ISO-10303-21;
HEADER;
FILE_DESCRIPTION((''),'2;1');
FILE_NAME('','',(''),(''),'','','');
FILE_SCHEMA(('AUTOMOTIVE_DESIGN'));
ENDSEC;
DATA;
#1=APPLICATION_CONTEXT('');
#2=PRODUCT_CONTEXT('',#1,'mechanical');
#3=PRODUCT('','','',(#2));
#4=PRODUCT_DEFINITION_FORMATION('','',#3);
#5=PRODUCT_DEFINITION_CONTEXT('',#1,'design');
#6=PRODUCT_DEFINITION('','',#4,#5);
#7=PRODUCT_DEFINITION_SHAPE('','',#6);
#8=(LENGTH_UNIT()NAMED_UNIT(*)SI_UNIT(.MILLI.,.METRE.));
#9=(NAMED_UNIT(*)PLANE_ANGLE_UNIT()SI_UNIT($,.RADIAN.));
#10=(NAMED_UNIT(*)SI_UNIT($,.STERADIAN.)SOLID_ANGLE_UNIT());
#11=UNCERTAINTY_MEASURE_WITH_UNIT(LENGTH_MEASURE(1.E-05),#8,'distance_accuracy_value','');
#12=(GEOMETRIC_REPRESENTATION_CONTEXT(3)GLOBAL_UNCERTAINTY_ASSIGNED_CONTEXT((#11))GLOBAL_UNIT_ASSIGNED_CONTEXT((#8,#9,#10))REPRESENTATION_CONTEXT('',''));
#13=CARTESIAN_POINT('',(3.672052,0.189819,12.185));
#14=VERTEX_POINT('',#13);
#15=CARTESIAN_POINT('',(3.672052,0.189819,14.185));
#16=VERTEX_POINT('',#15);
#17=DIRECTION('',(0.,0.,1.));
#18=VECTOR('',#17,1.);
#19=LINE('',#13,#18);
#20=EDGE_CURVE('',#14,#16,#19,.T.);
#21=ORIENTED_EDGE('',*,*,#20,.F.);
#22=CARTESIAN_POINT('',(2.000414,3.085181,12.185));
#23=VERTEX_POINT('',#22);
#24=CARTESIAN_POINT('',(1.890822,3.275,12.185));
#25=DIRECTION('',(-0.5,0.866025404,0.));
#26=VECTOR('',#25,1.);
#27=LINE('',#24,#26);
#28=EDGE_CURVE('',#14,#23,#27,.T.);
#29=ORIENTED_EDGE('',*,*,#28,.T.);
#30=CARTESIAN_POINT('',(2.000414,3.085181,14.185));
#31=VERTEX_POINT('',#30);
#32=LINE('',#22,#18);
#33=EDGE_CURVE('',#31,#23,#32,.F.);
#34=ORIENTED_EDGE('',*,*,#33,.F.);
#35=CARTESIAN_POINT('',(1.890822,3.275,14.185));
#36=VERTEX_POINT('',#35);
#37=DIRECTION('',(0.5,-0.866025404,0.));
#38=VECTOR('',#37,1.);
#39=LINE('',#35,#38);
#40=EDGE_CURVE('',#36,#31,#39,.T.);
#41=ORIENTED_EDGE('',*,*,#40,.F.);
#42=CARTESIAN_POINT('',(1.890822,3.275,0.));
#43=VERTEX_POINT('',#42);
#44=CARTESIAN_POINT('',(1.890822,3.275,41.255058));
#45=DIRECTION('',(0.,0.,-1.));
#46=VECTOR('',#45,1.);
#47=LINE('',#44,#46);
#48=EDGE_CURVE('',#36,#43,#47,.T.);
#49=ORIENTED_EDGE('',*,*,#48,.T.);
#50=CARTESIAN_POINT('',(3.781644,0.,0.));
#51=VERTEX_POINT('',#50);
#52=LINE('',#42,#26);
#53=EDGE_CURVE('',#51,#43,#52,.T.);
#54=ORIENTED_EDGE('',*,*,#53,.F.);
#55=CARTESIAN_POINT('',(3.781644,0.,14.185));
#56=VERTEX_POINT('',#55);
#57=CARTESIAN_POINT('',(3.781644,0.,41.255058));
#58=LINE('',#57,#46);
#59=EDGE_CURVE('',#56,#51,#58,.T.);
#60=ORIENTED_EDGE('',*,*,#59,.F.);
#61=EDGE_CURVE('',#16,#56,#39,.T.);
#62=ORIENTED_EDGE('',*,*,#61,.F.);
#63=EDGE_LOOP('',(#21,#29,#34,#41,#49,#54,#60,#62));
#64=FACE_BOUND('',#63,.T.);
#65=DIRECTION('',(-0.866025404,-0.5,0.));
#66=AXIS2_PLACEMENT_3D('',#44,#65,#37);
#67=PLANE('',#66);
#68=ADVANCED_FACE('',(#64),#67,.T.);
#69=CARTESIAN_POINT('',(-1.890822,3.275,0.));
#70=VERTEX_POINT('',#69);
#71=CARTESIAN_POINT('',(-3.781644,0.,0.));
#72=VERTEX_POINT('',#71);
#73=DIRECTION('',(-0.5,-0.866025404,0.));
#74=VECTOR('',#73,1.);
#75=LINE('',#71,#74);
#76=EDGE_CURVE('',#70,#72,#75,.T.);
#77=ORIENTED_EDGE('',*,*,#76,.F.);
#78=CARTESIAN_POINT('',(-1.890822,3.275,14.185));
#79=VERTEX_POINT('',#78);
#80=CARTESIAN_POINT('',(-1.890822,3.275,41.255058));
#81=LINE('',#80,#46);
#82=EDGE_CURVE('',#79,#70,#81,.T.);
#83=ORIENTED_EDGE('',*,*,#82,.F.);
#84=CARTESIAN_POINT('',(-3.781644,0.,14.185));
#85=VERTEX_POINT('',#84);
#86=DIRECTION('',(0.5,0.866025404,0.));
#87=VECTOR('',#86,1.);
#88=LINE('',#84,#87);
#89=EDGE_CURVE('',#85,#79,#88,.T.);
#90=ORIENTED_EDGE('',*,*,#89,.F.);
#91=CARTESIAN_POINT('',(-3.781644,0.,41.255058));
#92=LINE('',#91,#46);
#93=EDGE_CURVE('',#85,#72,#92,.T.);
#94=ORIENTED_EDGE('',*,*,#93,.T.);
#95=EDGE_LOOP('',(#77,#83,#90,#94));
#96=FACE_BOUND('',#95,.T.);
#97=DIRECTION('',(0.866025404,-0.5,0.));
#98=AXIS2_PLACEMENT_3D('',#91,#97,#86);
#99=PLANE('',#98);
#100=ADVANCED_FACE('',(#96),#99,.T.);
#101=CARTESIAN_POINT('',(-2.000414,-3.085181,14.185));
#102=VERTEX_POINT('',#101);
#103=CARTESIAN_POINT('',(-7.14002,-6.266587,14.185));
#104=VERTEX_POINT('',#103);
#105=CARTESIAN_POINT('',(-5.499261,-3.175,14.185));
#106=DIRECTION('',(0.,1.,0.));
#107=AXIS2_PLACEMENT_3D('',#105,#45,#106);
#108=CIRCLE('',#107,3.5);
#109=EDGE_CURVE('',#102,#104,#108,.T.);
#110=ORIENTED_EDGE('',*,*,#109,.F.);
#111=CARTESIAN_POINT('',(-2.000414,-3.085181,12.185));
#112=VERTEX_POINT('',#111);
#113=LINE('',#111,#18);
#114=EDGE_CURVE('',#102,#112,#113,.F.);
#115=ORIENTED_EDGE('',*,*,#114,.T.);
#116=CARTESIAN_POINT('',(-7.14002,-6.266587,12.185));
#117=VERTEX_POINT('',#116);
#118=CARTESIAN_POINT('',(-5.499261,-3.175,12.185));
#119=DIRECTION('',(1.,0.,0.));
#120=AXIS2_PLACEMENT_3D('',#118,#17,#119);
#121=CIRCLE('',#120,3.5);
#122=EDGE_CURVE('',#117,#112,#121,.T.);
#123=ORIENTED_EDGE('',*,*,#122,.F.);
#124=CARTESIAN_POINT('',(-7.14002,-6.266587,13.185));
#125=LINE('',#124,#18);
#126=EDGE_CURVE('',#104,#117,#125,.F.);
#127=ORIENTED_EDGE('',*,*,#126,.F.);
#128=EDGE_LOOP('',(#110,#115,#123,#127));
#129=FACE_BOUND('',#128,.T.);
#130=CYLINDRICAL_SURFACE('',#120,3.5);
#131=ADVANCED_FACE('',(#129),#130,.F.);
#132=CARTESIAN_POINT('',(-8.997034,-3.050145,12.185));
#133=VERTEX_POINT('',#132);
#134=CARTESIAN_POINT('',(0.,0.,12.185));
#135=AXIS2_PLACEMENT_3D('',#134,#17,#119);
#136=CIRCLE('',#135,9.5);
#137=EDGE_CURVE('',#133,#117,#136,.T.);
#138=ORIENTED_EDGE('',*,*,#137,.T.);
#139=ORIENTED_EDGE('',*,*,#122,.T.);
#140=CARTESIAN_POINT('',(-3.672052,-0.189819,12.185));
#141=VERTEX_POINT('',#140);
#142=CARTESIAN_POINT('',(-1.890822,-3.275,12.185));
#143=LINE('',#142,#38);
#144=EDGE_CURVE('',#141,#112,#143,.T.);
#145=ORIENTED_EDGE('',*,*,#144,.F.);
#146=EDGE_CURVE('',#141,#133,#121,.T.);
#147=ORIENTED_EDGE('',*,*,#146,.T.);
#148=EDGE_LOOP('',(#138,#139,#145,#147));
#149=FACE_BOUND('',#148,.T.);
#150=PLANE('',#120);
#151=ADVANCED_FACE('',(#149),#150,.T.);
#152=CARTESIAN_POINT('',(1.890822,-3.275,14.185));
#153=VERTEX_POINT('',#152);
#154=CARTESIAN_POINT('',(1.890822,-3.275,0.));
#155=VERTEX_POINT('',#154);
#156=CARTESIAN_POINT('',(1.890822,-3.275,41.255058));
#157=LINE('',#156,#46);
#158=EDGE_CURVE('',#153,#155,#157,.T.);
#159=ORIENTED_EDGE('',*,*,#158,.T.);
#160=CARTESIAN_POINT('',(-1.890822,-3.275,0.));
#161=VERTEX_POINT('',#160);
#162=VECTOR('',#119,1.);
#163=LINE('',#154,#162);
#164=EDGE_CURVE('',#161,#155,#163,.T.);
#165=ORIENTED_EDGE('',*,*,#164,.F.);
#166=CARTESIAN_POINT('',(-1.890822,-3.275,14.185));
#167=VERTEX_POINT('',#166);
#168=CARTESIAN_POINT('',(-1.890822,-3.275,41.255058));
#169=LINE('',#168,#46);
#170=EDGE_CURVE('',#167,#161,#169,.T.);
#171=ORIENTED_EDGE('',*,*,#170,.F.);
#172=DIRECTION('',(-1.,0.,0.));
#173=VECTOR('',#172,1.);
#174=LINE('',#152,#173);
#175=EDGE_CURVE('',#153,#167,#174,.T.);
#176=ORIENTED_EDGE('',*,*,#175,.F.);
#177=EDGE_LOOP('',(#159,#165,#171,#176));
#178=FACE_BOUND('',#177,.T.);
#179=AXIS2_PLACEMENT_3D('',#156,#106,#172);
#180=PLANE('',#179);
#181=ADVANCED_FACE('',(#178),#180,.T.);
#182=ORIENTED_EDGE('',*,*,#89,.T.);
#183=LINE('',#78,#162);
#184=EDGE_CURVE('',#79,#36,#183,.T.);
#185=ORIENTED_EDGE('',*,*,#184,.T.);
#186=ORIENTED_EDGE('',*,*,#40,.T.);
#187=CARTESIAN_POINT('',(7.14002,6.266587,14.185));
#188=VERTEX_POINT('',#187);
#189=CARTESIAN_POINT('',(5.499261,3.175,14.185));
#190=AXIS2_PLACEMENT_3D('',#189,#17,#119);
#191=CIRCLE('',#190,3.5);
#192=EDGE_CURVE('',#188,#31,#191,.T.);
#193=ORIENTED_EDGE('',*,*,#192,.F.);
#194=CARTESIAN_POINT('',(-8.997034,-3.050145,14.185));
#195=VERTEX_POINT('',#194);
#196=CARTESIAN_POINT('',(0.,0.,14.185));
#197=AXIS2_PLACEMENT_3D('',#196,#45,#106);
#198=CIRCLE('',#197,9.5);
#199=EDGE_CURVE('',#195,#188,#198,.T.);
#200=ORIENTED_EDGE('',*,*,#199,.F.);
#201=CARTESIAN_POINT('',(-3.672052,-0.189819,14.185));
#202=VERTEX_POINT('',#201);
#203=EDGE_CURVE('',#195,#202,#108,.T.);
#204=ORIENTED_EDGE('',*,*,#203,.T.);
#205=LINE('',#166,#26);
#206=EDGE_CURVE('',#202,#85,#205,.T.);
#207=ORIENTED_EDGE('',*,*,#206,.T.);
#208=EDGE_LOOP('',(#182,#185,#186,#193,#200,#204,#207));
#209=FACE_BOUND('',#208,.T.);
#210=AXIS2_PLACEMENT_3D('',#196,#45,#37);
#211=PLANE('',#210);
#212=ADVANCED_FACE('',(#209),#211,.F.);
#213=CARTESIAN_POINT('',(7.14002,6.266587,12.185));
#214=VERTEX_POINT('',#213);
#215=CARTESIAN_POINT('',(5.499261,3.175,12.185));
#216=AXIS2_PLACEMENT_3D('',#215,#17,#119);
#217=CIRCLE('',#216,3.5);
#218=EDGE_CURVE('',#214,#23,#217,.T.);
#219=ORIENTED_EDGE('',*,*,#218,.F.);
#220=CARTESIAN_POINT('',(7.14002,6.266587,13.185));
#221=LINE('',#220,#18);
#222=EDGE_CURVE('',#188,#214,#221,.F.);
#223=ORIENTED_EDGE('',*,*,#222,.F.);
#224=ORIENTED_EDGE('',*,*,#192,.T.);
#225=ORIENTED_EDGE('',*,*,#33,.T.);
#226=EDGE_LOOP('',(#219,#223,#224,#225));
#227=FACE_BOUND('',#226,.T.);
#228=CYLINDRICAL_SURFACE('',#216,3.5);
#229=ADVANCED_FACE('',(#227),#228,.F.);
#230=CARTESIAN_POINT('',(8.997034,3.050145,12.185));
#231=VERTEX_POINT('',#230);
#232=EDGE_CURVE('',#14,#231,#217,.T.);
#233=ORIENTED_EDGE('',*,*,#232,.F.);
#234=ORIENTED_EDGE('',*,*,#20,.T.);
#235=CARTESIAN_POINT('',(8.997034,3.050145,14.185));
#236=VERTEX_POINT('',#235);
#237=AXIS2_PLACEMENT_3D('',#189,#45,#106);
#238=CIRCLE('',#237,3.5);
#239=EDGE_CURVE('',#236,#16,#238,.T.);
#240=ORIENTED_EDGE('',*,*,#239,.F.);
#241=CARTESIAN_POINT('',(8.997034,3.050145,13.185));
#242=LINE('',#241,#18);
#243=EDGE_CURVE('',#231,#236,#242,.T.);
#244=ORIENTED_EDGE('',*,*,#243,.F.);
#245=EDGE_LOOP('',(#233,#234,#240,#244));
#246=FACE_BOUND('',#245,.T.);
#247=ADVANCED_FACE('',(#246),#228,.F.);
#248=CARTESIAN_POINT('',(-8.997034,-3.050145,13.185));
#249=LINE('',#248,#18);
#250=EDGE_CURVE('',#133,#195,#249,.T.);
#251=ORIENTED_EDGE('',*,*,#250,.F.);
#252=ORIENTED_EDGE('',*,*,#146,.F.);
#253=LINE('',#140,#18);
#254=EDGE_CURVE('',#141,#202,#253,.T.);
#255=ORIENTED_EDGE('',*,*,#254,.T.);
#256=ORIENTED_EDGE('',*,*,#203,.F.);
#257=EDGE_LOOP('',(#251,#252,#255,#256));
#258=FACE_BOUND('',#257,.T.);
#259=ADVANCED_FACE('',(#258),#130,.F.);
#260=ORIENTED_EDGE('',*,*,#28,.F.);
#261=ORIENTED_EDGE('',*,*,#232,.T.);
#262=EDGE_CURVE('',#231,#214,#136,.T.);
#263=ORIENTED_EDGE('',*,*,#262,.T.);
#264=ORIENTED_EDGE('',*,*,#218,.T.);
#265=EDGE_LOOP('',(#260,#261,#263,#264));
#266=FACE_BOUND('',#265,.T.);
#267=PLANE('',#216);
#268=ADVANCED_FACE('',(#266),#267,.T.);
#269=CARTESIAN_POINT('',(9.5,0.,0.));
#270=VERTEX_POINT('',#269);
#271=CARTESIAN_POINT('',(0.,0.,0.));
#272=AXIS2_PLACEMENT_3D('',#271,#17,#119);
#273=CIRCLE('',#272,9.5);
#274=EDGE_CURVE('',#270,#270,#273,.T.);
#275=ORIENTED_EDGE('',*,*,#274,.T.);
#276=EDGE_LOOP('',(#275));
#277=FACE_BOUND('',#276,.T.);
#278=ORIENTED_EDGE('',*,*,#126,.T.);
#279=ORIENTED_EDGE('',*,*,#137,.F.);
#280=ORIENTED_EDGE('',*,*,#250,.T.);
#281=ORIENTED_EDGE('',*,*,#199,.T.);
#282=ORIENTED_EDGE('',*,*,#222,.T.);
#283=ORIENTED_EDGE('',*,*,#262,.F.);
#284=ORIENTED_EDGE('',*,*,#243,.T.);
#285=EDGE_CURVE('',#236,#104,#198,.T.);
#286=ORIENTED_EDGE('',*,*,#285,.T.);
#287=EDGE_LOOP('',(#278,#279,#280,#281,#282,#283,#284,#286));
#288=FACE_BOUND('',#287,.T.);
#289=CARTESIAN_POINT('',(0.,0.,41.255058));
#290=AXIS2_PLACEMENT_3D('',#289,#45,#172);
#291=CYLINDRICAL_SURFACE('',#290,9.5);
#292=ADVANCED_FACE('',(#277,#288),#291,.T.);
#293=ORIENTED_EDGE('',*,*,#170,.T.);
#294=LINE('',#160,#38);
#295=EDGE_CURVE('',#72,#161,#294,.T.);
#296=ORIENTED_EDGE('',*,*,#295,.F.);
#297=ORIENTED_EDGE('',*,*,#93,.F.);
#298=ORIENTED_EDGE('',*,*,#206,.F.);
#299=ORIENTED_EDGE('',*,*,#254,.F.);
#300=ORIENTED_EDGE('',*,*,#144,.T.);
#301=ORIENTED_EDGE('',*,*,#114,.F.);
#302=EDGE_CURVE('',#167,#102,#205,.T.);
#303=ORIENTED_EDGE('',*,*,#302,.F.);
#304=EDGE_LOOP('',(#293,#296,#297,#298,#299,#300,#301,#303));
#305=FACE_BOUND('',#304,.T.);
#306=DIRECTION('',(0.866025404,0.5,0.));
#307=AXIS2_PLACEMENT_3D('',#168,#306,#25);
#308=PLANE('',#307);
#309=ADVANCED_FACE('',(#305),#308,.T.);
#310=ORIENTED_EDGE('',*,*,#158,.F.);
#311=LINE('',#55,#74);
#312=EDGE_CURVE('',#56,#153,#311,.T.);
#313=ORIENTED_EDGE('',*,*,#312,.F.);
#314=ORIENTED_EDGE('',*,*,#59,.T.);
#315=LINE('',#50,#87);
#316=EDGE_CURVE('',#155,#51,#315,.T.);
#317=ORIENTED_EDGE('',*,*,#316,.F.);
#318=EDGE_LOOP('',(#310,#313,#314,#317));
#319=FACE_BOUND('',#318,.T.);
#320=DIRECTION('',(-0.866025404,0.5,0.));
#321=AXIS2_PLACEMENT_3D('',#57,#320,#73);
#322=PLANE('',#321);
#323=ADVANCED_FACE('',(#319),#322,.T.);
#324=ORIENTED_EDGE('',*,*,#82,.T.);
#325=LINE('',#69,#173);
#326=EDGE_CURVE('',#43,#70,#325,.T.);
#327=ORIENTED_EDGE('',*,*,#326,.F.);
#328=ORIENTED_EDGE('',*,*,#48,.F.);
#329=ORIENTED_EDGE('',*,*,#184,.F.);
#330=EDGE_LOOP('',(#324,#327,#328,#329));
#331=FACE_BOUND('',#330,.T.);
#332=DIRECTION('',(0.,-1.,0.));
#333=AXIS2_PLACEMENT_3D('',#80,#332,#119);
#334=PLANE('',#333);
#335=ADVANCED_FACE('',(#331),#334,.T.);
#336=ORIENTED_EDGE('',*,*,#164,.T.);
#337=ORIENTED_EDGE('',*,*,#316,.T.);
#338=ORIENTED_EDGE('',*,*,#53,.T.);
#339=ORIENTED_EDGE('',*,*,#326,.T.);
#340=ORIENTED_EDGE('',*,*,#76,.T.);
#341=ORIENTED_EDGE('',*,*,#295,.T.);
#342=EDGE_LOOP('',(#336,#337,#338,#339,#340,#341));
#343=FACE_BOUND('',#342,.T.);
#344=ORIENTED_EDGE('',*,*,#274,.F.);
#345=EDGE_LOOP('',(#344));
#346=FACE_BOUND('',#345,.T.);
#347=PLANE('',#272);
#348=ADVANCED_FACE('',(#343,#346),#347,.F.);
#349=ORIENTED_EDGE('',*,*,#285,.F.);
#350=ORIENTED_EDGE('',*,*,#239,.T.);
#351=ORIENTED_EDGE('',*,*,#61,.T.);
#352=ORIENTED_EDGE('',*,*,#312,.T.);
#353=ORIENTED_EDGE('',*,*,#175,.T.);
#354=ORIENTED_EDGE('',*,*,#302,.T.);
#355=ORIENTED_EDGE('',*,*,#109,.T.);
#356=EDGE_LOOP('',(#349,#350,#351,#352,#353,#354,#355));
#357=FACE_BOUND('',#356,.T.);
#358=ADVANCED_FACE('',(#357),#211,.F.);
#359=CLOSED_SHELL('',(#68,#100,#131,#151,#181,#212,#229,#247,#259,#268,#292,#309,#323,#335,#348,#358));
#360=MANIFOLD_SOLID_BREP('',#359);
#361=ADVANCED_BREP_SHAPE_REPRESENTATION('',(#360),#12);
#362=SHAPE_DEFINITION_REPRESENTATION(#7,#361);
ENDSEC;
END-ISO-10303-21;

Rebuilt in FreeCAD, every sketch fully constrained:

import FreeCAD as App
import Part
import Sketcher

V = App.Vector
Q = App.Units.Quantity

doc = App.newDocument("Part")
body = doc.addObject("PartDesign::Body", "Body")

sketch1 = body.newObject("Sketcher::SketchObject", "Sketch")
sketch1.AttachmentSupport = (doc.getObject("XY_Plane"), [""])
sketch1.MapMode = "FlatFace"
sketch1.addGeometry([
    Part.Circle(V(0, 0, 0), V(0, 0, 1), 9.5),
    Part.LineSegment(V(3.8, 0, 0), V(1.9, -3.3, 0)),
    Part.LineSegment(V(1.9, -3.3, 0), V(-1.9, -3.3, 0)),
    Part.LineSegment(V(-1.9, -3.3, 0), V(-3.8, 0, 0)),
    Part.LineSegment(V(-3.8, 0, 0), V(-1.9, 3.3, 0)),
    Part.LineSegment(V(-1.9, 3.3, 0), V(1.9, 3.3, 0)),
    Part.LineSegment(V(1.9, 3.3, 0), V(3.8, 0, 0)),
], False)
sketch1.addConstraint([
    Sketcher.Constraint("Coincident", 1, 2, 2, 1),
    Sketcher.Constraint("Coincident", 2, 2, 3, 1),
    Sketcher.Constraint("Coincident", 3, 2, 4, 1),
    Sketcher.Constraint("Coincident", 4, 2, 5, 1),
    Sketcher.Constraint("Coincident", 5, 2, 6, 1),
    Sketcher.Constraint("Coincident", 6, 2, 1, 1),
    Sketcher.Constraint("Horizontal", 2),
    Sketcher.Constraint("Horizontal", 5),
    Sketcher.Constraint("Coincident", 0, 3, -1, 1),
    Sketcher.Constraint("Symmetric", 1, 2, 4, 2, -1, 1),
    Sketcher.Constraint("Symmetric", 3, 2, 6, 2, -1, 1),
    Sketcher.Constraint("PointOnObject", 3, 2, -1),
    Sketcher.Constraint("Parallel", 3, 6),
    Sketcher.Constraint("Vertical", 2, 2, 4, 2),
    Sketcher.Constraint("Diameter", 0, 19.0),
    Sketcher.Constraint("Angle", 1, Q("-120 deg")),
    Sketcher.Constraint("DistanceY", 2, 2, 4, 2, 6.55),
    Sketcher.Constraint("DistanceX", 2, 2, 2, 1, 3.781644),
])
pad1 = body.newObject("PartDesign::Pad", "Pad")
pad1.Profile = sketch1
pad1.Length = 14.185

sketch2 = body.newObject("Sketcher::SketchObject", "Sketch001")
sketch2.AttachmentSupport = (doc.getObject("XY_Plane"), [""])
sketch2.MapMode = "FlatFace"
sketch2.AttachmentOffset = App.Placement(V(0, 0, 14.185), App.Rotation())
sketch2.addGeometry([
    Part.Circle(V(5.5, 3.2, 0), V(0, 0, 1), 3.5),
    Part.Circle(V(-5.5, -3.2, 0), V(0, 0, 1), 3.5),
], False)
sketch2.addConstraint([
    Sketcher.Constraint("Equal", 0, 1),
    Sketcher.Constraint("Symmetric", 0, 3, 1, 3, -1, 1),
    Sketcher.Constraint("Diameter", 0, 7.0),
    Sketcher.Constraint("DistanceY", 1, 3, 0, 3, 6.35),
    Sketcher.Constraint("DistanceX", -1, 1, 0, 3, 5.499261),
])
pocket1 = body.newObject("PartDesign::Pocket", "Pocket")
pocket1.Profile = sketch2
pocket1.Length = 2

doc.recompute()
